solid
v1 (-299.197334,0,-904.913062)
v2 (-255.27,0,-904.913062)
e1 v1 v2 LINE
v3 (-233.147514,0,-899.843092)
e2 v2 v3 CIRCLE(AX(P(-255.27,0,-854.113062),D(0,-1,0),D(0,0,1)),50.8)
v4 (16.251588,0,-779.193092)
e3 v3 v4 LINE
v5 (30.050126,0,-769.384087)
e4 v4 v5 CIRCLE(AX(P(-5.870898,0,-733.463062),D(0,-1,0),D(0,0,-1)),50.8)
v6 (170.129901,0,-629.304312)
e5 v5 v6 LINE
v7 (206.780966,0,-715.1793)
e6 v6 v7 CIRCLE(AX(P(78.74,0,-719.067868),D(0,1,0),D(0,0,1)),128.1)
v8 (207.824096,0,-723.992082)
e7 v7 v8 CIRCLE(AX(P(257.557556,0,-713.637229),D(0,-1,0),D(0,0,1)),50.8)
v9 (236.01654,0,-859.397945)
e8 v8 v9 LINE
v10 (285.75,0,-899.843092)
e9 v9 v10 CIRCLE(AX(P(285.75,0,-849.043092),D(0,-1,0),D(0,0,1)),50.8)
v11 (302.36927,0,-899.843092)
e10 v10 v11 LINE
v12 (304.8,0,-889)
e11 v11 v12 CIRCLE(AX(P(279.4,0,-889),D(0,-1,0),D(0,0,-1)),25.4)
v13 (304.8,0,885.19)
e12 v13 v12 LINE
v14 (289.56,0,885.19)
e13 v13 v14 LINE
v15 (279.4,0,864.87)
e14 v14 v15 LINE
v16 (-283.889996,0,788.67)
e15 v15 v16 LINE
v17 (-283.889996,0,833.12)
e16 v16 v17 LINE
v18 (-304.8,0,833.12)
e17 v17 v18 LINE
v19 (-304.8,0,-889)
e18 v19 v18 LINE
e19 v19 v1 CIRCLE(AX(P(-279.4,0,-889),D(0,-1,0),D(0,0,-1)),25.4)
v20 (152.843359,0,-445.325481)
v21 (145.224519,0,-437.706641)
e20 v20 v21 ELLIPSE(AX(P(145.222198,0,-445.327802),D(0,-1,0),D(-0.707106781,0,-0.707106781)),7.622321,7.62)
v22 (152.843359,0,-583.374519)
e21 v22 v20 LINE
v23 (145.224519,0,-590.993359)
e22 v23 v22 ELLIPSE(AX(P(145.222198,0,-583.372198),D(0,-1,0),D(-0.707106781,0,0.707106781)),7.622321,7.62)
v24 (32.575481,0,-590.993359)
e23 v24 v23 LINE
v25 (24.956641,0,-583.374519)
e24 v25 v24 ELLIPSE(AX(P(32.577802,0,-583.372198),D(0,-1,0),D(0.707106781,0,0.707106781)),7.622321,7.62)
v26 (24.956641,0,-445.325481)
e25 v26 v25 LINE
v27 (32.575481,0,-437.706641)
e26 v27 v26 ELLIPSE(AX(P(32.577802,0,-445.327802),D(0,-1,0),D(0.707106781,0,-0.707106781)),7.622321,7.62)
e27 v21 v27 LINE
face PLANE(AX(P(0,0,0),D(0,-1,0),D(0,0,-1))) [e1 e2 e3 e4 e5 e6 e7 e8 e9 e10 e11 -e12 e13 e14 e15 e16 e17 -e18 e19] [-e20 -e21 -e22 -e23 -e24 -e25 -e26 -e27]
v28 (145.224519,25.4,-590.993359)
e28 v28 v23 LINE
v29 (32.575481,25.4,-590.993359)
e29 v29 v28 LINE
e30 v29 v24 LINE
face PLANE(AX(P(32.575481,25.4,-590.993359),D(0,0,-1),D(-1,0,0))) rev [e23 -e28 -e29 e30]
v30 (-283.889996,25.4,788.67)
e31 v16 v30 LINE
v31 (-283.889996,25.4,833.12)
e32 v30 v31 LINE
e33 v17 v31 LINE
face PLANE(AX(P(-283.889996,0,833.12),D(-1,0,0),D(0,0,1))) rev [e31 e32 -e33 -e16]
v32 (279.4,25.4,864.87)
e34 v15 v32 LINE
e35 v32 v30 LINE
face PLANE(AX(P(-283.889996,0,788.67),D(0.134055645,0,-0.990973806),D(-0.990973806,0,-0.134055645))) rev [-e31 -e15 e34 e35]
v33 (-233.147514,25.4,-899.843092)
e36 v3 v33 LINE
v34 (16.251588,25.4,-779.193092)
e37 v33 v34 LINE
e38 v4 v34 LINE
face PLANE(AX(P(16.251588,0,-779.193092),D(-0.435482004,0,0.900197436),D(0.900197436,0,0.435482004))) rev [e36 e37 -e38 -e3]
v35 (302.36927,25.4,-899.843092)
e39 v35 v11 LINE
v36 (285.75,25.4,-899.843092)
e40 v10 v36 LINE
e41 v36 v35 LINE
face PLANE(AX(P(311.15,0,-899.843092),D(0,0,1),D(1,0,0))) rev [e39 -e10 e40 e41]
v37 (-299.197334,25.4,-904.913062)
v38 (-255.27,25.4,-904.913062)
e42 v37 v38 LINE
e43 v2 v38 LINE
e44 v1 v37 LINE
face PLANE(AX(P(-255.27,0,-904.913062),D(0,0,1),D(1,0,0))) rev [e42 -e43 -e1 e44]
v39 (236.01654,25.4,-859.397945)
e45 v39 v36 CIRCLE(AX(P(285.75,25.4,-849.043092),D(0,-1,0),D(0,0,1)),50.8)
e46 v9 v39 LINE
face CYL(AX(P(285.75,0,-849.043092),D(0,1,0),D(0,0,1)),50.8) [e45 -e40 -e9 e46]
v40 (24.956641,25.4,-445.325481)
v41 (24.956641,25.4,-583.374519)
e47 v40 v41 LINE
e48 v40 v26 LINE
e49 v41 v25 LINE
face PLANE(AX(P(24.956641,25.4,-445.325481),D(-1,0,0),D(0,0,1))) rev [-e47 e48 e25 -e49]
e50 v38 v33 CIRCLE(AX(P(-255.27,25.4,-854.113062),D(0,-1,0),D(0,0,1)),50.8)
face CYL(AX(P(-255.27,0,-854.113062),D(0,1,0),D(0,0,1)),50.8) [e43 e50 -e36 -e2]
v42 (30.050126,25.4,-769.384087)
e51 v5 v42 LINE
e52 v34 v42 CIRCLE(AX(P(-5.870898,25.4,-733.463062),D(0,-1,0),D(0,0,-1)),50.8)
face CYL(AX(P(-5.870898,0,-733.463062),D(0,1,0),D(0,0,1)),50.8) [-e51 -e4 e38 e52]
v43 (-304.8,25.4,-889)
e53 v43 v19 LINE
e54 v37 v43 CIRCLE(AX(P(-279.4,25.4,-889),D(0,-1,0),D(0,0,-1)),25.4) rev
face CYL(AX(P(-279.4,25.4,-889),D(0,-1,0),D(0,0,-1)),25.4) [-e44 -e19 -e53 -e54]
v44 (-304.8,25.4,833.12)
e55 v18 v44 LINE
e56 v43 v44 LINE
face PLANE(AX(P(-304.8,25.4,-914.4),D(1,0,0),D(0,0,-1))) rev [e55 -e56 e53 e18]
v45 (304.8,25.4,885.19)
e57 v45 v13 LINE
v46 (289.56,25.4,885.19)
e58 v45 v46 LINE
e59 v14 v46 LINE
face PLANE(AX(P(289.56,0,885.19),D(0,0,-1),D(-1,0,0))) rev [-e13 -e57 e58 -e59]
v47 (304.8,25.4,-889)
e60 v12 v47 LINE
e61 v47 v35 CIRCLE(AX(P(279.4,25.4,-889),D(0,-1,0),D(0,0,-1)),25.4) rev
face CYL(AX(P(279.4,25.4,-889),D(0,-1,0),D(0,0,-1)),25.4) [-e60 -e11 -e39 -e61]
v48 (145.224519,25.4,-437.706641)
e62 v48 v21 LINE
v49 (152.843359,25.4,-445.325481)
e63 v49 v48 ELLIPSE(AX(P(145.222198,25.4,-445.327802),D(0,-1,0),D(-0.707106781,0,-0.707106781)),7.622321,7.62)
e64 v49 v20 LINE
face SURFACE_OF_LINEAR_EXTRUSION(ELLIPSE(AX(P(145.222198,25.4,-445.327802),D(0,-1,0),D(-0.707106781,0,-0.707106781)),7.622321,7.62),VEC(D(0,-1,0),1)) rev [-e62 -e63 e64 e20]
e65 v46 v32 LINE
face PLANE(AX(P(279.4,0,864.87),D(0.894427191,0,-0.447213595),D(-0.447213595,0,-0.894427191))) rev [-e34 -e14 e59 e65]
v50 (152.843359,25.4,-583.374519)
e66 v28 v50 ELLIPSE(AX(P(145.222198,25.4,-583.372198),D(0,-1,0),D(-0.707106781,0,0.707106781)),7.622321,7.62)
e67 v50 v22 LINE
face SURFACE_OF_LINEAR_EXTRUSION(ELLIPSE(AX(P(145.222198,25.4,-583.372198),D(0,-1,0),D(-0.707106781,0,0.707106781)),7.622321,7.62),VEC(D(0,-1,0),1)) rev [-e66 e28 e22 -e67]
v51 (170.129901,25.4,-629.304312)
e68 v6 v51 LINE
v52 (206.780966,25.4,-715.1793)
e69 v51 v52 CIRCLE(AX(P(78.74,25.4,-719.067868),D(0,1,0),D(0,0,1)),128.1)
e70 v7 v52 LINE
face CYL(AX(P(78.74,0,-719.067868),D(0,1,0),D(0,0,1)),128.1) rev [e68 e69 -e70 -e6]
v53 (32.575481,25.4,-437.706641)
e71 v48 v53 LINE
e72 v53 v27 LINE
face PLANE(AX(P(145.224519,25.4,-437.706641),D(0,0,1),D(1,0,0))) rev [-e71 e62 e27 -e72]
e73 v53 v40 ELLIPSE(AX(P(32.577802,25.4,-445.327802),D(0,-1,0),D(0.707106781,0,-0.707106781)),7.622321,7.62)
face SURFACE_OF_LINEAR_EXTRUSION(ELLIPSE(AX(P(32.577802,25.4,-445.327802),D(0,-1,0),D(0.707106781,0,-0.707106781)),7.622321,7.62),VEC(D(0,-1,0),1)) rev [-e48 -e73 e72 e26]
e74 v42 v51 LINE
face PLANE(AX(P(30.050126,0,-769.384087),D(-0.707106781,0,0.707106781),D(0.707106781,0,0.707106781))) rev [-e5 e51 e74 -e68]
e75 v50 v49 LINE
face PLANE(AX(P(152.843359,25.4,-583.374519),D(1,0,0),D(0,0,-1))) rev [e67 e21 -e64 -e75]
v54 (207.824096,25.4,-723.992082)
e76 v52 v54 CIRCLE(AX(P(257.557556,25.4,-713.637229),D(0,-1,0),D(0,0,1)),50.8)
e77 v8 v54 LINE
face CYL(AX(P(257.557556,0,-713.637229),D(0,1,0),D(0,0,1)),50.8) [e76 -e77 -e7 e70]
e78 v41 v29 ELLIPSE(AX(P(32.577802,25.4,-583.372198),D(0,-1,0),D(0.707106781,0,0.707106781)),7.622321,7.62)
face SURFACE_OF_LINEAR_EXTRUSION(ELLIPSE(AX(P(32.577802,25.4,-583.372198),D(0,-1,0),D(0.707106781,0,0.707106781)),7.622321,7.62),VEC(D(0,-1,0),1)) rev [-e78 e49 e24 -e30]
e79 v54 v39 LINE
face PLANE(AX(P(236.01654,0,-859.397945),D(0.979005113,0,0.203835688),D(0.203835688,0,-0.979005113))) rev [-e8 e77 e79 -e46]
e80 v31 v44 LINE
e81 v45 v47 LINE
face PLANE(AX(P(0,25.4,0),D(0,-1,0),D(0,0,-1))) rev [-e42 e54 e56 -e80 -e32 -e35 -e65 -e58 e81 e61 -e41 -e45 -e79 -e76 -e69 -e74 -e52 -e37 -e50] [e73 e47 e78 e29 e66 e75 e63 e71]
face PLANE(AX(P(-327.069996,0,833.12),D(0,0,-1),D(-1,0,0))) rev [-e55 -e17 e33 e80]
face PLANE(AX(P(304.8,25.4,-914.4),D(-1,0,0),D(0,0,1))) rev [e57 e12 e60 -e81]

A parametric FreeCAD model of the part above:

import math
import FreeCAD as App
import Part
import Sketcher

V = App.Vector
Q = App.Units.Quantity


def edges_at(feature, points):
    """Names of the edges that pass closest to the given points."""
    edges = feature.Shape.Edges
    near = lambda p: min(range(len(edges)), key=lambda i: edges[i].distToShape(Part.Vertex(*p))[0])
    return sorted({f"Edge{near(p) + 1}" for p in points})

doc = App.newDocument("Part")
body = doc.addObject("PartDesign::Body", "Body")

# Sketch on XZ plane
sketch1 = body.newObject("Sketcher::SketchObject", "Sketch")
sketch1.AttachmentSupport = (doc.getObject("XZ_Plane"), [""])
sketch1.MapMode = "FlatFace"
sketch1.addGeometry([
    Part.LineSegment(V(-304.8, -914.4, 0), V(-304.8, 914.4, 0)),
    Part.LineSegment(V(-304.8, 914.4, 0), V(304.8, 914.4, 0)),
    Part.LineSegment(V(304.8, 914.4, 0), V(304.8, -914.4, 0)),
    Part.LineSegment(V(304.8, -914.4, 0), V(-304.8, -914.4, 0)),
], False)
sketch1.addConstraint([
    Sketcher.Constraint("Coincident", 0, 2, 1, 1),
    Sketcher.Constraint("Coincident", 1, 2, 2, 1),
    Sketcher.Constraint("Coincident", 2, 2, 3, 1),
    Sketcher.Constraint("Coincident", 3, 2, 0, 1),
    Sketcher.Constraint("Vertical", 0),
    Sketcher.Constraint("Horizontal", 1),
    Sketcher.Constraint("Vertical", 2),
    Sketcher.Constraint("Horizontal", 3),
    Sketcher.Constraint("Symmetric", 0, 2, 2, 2, -1, 1),
    Sketcher.Constraint("DistanceX", 1, 1, 1, 2, Q("24 in")),
    Sketcher.Constraint("DistanceY", 0, 1, 0, 2, Q("72 in")),
])
pad1 = body.newObject("PartDesign::Pad", "Pad")
pad1.Profile = sketch1
pad1.Length = Q("1 in")
pad1.Reversed = True
doc.recompute()

fillet = body.newObject("PartDesign::Fillet", "Fillet")
fillet.Base = (pad1, edges_at(pad1, [
    (-304.8, 12.7, -914.4),
    (304.8, 12.7, -914.4),
    (304.8, 12.7, 914.4),
    (-304.8, 12.7, 914.4),
]))
fillet.Radius = Q("1 in")

# Sketch on XZ plane
sketch2 = body.newObject("Sketcher::SketchObject", "Sketch001")
sketch2.AttachmentSupport = (doc.getObject("XZ_Plane"), [""])
sketch2.MapMode = "FlatFace"
sketch2.AttachmentOffset = App.Placement(V(0, 0, -1 * 25.4), App.Rotation())
sketch2.addGeometry([
    Part.LineSegment(V(-233.147514, -899.843092, 0), V(16.251588, -779.193092, 0)),  # 0
    Part.ArcOfCircle(Part.Circle(V(-5.870898, -733.463062, 0), V(0, 0, 1), 50.8), math.radians(-64.184031), math.radians(-45)),  # 1
    Part.LineSegment(V(30.050126, -769.384087, 0), V(170.129901, -629.304312, 0)),  # 2
    Part.ArcOfCircle(Part.Circle(V(78.74, -719.067868, 0), V(0, 0, 1), 128.1), math.radians(1.739522), math.radians(44.485628)),  # 3
    Part.ArcOfCircle(Part.Circle(V(257.557556, -713.637229, 0), V(0, 0, 1), 50.8), math.radians(-178.260478), math.radians(-168.23865)),  # 4
    Part.LineSegment(V(207.824096, -723.992082, 0), V(236.01654, -859.397945, 0)),  # 5
    Part.ArcOfCircle(Part.Circle(V(285.75, -849.043092, 0), V(0, 0, 1), 50.8), math.radians(-168.23865), math.radians(-90)),  # 6
    Part.LineSegment(V(285.75, -899.843092, 0), V(311.15, -899.843092, 0)),  # 7
    Part.LineSegment(V(311.15, -899.843092, 0), V(311.15, -931.593092, 0)),  # 8
    Part.LineSegment(V(311.15, -931.593092, 0), V(-323.85, -931.593092, 0)),  # 9
    Part.LineSegment(V(-323.85, -931.593092, 0), V(-323.85, -904.913062, 0)),  # 10
    Part.LineSegment(V(-323.85, -904.913062, 0), V(-255.27, -904.913062, 0)),  # 11
    Part.ArcOfCircle(Part.Circle(V(-255.27, -854.113062, 0), V(0, 0, 1), 50.8), math.radians(-90), math.radians(-64.184031)),  # 12
], False)
sketch2.addConstraint([
    Sketcher.Constraint("Tangent", 0, 2, 1, 1),
    Sketcher.Constraint("Tangent", 1, 2, 2, 1),
    Sketcher.Constraint("Coincident", 2, 2, 3, 2),
    Sketcher.Constraint("Tangent", 3, 1, 4, 1),
    Sketcher.Constraint("Tangent", 4, 2, 5, 1),
    Sketcher.Constraint("Tangent", 5, 2, 6, 1),
    Sketcher.Constraint("Tangent", 6, 2, 7, 1),
    Sketcher.Constraint("Coincident", 7, 2, 8, 1),
    Sketcher.Constraint("Coincident", 8, 2, 9, 1),
    Sketcher.Constraint("Coincident", 9, 2, 10, 1),
    Sketcher.Constraint("Coincident", 10, 2, 11, 1),
    Sketcher.Constraint("Tangent", 11, 2, 12, 1),
    Sketcher.Constraint("Tangent", 12, 2, 0, 1),
    Sketcher.Constraint("Horizontal", 7),
    Sketcher.Constraint("Vertical", 8),
    Sketcher.Constraint("Horizontal", 9),
    Sketcher.Constraint("Vertical", 10),
    Sketcher.Constraint("Horizontal", 11),
    Sketcher.Constraint("Equal", 1, 4),
    Sketcher.Constraint("Equal", 4, 6),
    Sketcher.Constraint("Equal", 6, 12),
    Sketcher.Constraint("Horizontal", 7, 2, 12, 2),
    Sketcher.Constraint("Radius", 1, Q("2 in")),
    Sketcher.Constraint("DistanceX", 7, 1, 7, 2, Q("1 in")),
    Sketcher.Constraint("DistanceX", 9, 2, 9, 1, Q("25 in")),
    Sketcher.Constraint("DistanceX", 11, 1, 11, 2, Q("2.7 in")),
    Sketcher.Constraint("Angle", 2, Q("45 deg")),
    Sketcher.Constraint("DistanceY", 9, 2, 0, 2, Q("6 in")),
    Sketcher.Constraint("DistanceY", 8, 2, 8, 1, Q("1.25 in")),
    Sketcher.Constraint("DistanceX", -1, 1, 3, 3, Q("3.1 in")),
    Sketcher.Constraint("DistanceX", -1, 1, 6, 3, Q("11.25 in")),
    Sketcher.Constraint("Radius", 3, 128.1),
    Sketcher.Constraint("DistanceY", 10, 1, 10, 2, 26.68003),
    Sketcher.Constraint("DistanceX", -1, 1, 2, 2, 170.129901),
    Sketcher.Constraint("DistanceY", 3, 1, -1, 1, 715.1793),
    Sketcher.Constraint("Distance", 5, 138.309659),
])
pocket1 = body.newObject("PartDesign::Pocket", "Pocket")
pocket1.Profile = sketch2
pocket1.Type = "ThroughAll"
pocket1.Reversed = True

# Sketch on XZ plane
sketch3 = body.newObject("Sketcher::SketchObject", "Sketch002")
sketch3.AttachmentSupport = (doc.getObject("XZ_Plane"), [""])
sketch3.MapMode = "FlatFace"
sketch3.AttachmentOffset = App.Placement(V(0, 0, -1 * 25.4), App.Rotation())
sketch3.addGeometry([
    Part.LineSegment(V(-283.889996, 833.12, 0), V(-327.069996, 833.12, 0)),  # 0
    Part.LineSegment(V(-327.069996, 833.12, 0), V(-327.069996, 946.15, 0)),  # 1
    Part.LineSegment(V(-327.069996, 946.15, 0), V(330.2, 946.15, 0)),  # 2
    Part.LineSegment(V(330.2, 946.15, 0), V(330.2, 885.19, 0)),  # 3
    Part.LineSegment(V(330.2, 885.19, 0), V(289.56, 885.19, 0)),  # 4
    Part.LineSegment(V(289.56, 885.19, 0), V(279.4, 864.87, 0)),  # 5
    Part.LineSegment(V(279.4, 864.87, 0), V(-283.889996, 788.67, 0)),  # 6
    Part.LineSegment(V(-283.889996, 788.67, 0), V(-283.889996, 833.12, 0)),  # 7
], False)
sketch3.addConstraint([
    Sketcher.Constraint("Coincident", 0, 2, 1, 1),
    Sketcher.Constraint("Coincident", 1, 2, 2, 1),
    Sketcher.Constraint("Coincident", 2, 2, 3, 1),
    Sketcher.Constraint("Coincident", 3, 2, 4, 1),
    Sketcher.Constraint("Coincident", 4, 2, 5, 1),
    Sketcher.Constraint("Coincident", 5, 2, 6, 1),
    Sketcher.Constraint("Coincident", 6, 2, 7, 1),
    Sketcher.Constraint("Coincident", 7, 2, 0, 1),
    Sketcher.Constraint("Horizontal", 0),
    Sketcher.Constraint("Vertical", 1),
    Sketcher.Constraint("Horizontal", 2),
    Sketcher.Constraint("Vertical", 3),
    Sketcher.Constraint("Horizontal", 4),
    Sketcher.Constraint("Vertical", 7),
    Sketcher.Constraint("DistanceX", 0, 2, 0, 1, Q("1.7 in")),
    Sketcher.Constraint("DistanceX", 4, 2, 4, 1, Q("1.6 in")),
    Sketcher.Constraint("DistanceY", 3, 2, 3, 1, Q("2.4 in")),
    Sketcher.Constraint("DistanceX", -1, 1, 2, 2, Q("13 in")),
    Sketcher.Constraint("DistanceX", -1, 1, 5, 2, Q("11 in")),
    Sketcher.Constraint("DistanceY", 6, 2, 5, 2, Q("3 in")),
    Sketcher.Constraint("DistanceY", 1, 1, 1, 2, Q("4.45 in")),
    Sketcher.Constraint("DistanceY", 7, 1, 7, 2, Q("1.75 in")),
    Sketcher.Constraint("DistanceY", -1, 1, 0, 2, Q("32.8 in")),
    Sketcher.Constraint("Distance", 6, 568.420671),
])
pocket2 = body.newObject("PartDesign::Pocket", "Pocket001")
pocket2.Profile = sketch3
pocket2.Type = "ThroughAll"
pocket2.Reversed = True

# Sketch on XZ plane
sketch4 = body.newObject("Sketcher::SketchObject", "Sketch003")
sketch4.AttachmentSupport = (doc.getObject("XZ_Plane"), [""])
sketch4.MapMode = "FlatFace"
sketch4.addGeometry([
    Part.LineSegment(V(152.843359, -583.374519, 0), V(152.843359, -445.325481, 0)),  # 0
    Part.BSplineCurve([V(152.843359, -445.325481, 0), V(152.843359, -437.706641, 0), V(145.224519, -437.706641, 0)], [3, 3], [2.356346783, 3.926838524], False, 2, [1, 0.707214461, 1], False),  # 1
    Part.LineSegment(V(145.224519, -437.706641, 0), V(32.575481, -437.706641, 0)),  # 2
    Part.BSplineCurve([V(32.575481, -437.706641, 0), V(24.956641, -437.706641, 0), V(24.956641, -445.325481, 0)], [3, 3], [2.356346783, 3.926838524], False, 2, [1, 0.707214461, 1], False),  # 3
    Part.LineSegment(V(24.956641, -445.325481, 0), V(24.956641, -583.374519, 0)),  # 4
    Part.BSplineCurve([V(24.956641, -583.374519, 0), V(24.956641, -590.993359, 0), V(32.575481, -590.993359, 0)], [3, 3], [2.356346783, 3.926838524], False, 2, [1, 0.707214461, 1], False),  # 5
    Part.LineSegment(V(32.575481, -590.993359, 0), V(145.224519, -590.993359, 0)),  # 6
    Part.BSplineCurve([V(145.224519, -590.993359, 0), V(152.843359, -590.993359, 0), V(152.843359, -583.374519, 0)], [3, 3], [2.356346783, 3.926838524], False, 2, [1, 0.707214461, 1], False),  # 7
], False)
sketch4.addConstraint([
    Sketcher.Constraint("Block", 1),
    Sketcher.Constraint("Block", 3),
    Sketcher.Constraint("Block", 5),
    Sketcher.Constraint("Block", 7),
    Sketcher.Constraint("Coincident", 0, 2, 1, 1),
    Sketcher.Constraint("Coincident", 1, 2, 2, 1),
    Sketcher.Constraint("Coincident", 2, 2, 3, 1),
    Sketcher.Constraint("Coincident", 3, 2, 4, 1),
    Sketcher.Constraint("Coincident", 4, 2, 5, 1),
    Sketcher.Constraint("Coincident", 5, 2, 6, 1),
    Sketcher.Constraint("Coincident", 6, 2, 7, 1),
    Sketcher.Constraint("Coincident", 7, 2, 0, 1),
])
pocket3 = body.newObject("PartDesign::Pocket", "Pocket002")
pocket3.Profile = sketch4
pocket3.Type = "ThroughAll"

doc.recompute()
